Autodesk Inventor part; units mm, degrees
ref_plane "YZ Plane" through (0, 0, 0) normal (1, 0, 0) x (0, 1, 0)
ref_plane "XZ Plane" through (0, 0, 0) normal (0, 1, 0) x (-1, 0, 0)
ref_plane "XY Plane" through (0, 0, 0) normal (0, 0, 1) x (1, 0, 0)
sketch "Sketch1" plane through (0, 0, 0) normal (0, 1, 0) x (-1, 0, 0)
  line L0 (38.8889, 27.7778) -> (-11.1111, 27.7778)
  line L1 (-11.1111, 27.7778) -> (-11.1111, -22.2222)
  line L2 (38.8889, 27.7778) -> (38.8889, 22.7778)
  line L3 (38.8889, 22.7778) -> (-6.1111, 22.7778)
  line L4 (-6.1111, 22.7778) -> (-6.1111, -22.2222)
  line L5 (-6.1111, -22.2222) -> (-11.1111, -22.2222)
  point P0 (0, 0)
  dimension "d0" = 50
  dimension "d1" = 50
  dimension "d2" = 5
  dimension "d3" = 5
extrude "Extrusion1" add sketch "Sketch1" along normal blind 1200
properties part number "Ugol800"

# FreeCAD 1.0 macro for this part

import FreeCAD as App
import Part
import Sketcher
from FreeCAD import Vector
Q = App.Units.Quantity

doc = App.newDocument("Part")
body = doc.addObject("PartDesign::Body", "Body")

sketch1 = doc.addObject("Sketcher::SketchObject", "Sketch")
body.addObject(sketch1)
sketch1.AttachmentSupport = (doc.XZ_Plane, [""])
sketch1.MapMode = "FlatFace"
sketch1.addGeometry([
    Part.LineSegment(Vector(-38.8889, 22.7778, 0), Vector(-38.8889, 27.7778, 0)),
    Part.LineSegment(Vector(-38.8889, 27.7778, 0), Vector(11.1111, 27.7778, 0)),
    Part.LineSegment(Vector(11.1111, 27.7778, 0), Vector(11.1111, -22.2222, 0)),
    Part.LineSegment(Vector(11.1111, -22.2222, 0), Vector(6.1111, -22.2222, 0)),
    Part.LineSegment(Vector(6.1111, -22.2222, 0), Vector(6.1111, 22.7778, 0)),
    Part.LineSegment(Vector(6.1111, 22.7778, 0), Vector(-38.8889, 22.7778, 0)),
], False)
sketch1.addConstraint([
    Sketcher.Constraint("Coincident", 0, 2, 1, 1),
    Sketcher.Constraint("Coincident", 1, 2, 2, 1),
    Sketcher.Constraint("Coincident", 2, 2, 3, 1),
    Sketcher.Constraint("Coincident", 3, 2, 4, 1),
    Sketcher.Constraint("Coincident", 4, 2, 5, 1),
    Sketcher.Constraint("Coincident", 5, 2, 0, 1),
    Sketcher.Constraint("Vertical", 0),
    Sketcher.Constraint("Horizontal", 1),
    Sketcher.Constraint("Vertical", 2),
    Sketcher.Constraint("Horizontal", 3),
    Sketcher.Constraint("Vertical", 4),
    Sketcher.Constraint("Horizontal", 5),
    Sketcher.Constraint("Equal", 3, 0),
    Sketcher.Constraint("Equal", 1, 2),
    Sketcher.Constraint("DistanceX", 1, 1, 1, 2, Q("50 mm")),
    Sketcher.Constraint("DistanceX", 3, 2, 3, 1, Q("5 mm")),
    Sketcher.Constraint("DistanceX", 0, 2, -1, 1, Q("38.889 mm")),
    Sketcher.Constraint("DistanceY", -1, 1, 0, 2, Q("27.7778 mm")),
])
pad1 = doc.addObject("PartDesign::Pad", "Pad")
body.addObject(pad1)
pad1.Profile = sketch1
pad1.Length = 1200
pad1.Reversed = True

doc.recompute()
